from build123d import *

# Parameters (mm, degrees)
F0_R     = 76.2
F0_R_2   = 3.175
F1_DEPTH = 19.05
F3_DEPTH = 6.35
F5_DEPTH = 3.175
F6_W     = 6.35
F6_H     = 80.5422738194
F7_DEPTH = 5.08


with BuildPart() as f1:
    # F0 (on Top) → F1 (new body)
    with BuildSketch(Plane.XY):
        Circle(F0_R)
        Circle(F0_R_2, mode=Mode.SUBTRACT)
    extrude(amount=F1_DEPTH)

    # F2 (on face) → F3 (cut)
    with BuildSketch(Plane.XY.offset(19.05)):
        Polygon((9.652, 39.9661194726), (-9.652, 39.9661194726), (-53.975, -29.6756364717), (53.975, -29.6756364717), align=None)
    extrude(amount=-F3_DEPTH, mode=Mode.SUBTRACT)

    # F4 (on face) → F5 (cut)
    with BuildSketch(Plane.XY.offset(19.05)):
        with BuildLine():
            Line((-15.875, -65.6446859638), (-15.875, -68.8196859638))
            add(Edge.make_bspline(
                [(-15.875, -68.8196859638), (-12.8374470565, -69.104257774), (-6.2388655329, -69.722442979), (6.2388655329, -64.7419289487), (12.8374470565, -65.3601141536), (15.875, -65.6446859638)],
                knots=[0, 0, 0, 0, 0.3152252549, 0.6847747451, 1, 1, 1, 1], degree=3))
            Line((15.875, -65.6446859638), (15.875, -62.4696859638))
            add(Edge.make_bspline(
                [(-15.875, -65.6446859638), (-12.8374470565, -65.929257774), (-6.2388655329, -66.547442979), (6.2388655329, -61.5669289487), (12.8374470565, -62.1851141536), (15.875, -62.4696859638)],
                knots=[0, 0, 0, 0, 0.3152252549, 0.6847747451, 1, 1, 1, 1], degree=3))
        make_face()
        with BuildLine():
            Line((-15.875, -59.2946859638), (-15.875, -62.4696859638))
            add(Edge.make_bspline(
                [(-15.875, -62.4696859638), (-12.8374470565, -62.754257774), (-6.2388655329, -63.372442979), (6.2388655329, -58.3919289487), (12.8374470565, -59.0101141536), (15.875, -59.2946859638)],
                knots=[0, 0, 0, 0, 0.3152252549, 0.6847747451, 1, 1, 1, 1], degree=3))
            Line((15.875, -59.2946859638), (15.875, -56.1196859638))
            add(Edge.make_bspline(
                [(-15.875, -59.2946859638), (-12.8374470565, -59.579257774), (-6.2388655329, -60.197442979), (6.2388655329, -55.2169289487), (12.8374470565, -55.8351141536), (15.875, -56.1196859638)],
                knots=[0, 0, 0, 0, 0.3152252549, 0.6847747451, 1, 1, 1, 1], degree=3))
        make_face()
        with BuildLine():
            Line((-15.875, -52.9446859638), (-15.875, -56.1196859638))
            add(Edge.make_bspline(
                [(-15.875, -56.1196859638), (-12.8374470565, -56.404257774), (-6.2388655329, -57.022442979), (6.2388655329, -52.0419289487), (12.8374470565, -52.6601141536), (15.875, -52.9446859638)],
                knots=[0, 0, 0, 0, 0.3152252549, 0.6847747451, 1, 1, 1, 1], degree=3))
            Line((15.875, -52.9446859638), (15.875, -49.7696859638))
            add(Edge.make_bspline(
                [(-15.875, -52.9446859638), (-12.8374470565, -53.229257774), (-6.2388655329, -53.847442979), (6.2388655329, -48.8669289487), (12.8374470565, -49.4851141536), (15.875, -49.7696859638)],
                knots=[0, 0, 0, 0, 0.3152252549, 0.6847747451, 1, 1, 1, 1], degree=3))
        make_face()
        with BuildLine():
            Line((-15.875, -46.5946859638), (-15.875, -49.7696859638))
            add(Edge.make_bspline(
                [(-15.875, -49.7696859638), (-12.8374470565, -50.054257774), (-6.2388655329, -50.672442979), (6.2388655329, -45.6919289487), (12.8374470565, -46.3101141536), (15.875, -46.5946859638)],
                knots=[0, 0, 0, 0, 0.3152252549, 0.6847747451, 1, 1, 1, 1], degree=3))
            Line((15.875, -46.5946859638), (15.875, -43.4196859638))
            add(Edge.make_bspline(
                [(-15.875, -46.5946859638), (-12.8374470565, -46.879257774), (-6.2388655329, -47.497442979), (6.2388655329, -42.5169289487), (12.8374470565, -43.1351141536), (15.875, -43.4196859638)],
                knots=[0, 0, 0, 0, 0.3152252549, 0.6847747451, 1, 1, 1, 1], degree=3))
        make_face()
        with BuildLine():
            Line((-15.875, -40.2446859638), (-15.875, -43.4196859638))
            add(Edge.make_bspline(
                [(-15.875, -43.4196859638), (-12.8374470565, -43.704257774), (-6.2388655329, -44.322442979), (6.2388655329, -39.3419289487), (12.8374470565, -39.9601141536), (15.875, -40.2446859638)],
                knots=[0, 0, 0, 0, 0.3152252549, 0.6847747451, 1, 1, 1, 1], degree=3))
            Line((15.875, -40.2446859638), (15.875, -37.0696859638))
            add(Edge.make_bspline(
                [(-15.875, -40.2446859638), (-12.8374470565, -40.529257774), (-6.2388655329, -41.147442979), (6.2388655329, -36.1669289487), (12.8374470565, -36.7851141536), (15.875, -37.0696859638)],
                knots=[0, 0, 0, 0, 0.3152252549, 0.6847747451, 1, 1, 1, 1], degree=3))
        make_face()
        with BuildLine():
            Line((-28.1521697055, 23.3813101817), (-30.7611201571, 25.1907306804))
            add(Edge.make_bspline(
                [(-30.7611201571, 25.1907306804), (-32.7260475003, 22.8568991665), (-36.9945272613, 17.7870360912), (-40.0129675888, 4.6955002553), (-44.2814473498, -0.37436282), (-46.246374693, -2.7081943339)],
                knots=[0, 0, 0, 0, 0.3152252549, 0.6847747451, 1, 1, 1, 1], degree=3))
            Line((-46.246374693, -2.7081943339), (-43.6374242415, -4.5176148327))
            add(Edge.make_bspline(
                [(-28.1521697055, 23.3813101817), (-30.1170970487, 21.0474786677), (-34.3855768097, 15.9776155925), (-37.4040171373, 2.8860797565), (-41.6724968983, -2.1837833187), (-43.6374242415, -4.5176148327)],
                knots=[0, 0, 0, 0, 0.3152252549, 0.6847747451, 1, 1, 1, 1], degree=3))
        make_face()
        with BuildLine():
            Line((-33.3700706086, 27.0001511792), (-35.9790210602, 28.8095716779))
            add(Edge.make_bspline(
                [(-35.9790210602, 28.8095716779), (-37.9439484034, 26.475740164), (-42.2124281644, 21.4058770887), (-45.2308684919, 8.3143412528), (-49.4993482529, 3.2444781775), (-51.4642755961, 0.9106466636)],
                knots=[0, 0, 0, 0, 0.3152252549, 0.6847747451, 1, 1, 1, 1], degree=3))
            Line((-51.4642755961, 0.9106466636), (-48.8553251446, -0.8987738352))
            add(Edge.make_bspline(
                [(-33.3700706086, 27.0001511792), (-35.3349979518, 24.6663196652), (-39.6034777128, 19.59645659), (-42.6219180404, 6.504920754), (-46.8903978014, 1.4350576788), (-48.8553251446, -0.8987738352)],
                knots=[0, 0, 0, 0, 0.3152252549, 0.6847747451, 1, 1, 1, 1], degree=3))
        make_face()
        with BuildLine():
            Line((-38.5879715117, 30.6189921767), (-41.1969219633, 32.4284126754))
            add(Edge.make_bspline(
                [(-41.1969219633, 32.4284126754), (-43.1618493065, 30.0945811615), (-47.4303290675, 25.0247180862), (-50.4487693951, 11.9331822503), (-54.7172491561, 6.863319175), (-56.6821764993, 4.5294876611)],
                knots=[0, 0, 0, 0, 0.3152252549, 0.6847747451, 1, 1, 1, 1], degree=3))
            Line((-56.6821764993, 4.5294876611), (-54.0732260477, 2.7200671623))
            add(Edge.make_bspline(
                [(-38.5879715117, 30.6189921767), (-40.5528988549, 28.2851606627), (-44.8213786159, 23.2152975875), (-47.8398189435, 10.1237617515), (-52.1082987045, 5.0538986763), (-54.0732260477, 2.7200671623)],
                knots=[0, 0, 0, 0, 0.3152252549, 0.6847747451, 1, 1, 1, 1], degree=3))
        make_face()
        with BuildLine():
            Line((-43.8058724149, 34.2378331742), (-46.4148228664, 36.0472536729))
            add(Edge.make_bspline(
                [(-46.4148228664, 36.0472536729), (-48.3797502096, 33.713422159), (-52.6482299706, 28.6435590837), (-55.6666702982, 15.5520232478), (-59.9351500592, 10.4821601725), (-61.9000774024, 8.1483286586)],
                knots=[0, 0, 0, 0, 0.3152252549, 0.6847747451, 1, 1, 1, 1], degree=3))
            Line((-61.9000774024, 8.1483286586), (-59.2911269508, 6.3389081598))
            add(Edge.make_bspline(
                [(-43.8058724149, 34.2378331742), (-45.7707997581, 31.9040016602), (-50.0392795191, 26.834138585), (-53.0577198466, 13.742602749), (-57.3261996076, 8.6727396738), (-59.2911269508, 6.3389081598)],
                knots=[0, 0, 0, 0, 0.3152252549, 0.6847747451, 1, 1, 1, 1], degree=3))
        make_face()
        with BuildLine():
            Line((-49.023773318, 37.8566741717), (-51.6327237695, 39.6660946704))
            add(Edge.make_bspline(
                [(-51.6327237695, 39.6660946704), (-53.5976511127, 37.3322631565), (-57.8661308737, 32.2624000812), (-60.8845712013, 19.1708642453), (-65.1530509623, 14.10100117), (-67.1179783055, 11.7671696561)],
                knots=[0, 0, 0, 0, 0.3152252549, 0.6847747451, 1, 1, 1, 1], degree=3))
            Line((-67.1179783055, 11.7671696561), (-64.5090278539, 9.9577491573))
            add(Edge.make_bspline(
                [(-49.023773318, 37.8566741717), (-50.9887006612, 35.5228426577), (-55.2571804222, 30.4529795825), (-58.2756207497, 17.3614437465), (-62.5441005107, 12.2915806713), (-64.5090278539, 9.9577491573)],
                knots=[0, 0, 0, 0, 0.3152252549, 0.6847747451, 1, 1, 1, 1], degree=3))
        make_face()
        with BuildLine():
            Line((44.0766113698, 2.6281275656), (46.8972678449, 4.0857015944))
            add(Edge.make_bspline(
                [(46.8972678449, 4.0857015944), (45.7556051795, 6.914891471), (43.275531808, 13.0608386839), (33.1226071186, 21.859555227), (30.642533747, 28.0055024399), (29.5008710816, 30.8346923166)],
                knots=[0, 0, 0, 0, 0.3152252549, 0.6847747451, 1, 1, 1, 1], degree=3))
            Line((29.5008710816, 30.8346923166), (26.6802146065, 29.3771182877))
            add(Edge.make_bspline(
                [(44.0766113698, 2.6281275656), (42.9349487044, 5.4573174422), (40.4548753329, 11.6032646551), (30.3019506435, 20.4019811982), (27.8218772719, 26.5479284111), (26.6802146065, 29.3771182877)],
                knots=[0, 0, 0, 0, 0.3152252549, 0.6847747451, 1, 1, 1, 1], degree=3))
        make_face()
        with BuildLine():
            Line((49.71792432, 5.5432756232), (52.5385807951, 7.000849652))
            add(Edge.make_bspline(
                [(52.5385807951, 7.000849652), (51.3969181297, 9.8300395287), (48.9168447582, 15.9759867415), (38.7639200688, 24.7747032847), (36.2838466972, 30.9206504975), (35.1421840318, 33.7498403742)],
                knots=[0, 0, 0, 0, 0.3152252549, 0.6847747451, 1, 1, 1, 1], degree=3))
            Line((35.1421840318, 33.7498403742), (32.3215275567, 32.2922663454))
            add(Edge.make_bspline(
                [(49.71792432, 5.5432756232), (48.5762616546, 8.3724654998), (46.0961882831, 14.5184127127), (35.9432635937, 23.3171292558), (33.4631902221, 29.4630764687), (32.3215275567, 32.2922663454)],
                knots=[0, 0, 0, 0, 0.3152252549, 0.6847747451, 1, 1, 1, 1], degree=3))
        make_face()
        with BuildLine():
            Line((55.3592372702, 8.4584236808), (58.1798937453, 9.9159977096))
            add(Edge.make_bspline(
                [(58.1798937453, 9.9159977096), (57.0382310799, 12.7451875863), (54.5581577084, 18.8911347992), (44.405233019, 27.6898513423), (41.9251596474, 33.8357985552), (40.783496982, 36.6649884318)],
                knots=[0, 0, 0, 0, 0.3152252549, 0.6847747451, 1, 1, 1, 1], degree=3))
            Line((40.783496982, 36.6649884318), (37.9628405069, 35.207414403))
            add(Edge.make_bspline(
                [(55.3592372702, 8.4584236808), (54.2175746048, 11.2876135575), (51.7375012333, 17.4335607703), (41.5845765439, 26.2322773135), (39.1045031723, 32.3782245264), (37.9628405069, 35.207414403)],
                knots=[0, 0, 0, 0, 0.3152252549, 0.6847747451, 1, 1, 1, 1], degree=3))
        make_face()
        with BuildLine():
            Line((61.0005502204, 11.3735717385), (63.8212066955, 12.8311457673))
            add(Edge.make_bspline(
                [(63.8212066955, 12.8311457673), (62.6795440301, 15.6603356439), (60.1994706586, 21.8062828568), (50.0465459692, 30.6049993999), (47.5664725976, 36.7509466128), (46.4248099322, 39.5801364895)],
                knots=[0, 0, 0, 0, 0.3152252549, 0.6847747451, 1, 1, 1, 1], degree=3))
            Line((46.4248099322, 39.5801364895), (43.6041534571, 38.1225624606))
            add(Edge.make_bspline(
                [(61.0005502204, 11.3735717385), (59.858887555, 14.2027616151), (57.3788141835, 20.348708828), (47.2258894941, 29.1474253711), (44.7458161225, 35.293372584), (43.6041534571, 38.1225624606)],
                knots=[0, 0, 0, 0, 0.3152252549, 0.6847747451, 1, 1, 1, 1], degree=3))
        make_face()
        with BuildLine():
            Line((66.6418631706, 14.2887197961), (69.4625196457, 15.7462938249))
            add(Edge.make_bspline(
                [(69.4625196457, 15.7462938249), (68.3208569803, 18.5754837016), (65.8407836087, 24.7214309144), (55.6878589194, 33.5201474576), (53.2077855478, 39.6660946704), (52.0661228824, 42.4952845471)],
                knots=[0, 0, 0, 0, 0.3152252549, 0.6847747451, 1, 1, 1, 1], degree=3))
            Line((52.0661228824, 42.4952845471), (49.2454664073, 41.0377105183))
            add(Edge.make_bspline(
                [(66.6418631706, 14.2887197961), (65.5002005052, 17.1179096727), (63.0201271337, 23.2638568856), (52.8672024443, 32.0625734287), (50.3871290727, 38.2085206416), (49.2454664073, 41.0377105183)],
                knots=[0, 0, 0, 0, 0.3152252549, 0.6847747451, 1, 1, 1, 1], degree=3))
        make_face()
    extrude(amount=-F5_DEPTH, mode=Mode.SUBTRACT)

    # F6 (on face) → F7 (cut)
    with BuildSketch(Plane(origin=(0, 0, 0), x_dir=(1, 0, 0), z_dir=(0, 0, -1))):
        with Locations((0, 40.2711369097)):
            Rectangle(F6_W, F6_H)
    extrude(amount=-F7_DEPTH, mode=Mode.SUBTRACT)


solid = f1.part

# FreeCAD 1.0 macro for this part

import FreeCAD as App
import Part
import Sketcher

V = App.Vector
Q = App.Units.Quantity


def add_polygon(sketch, points):
    """Adds a closed chain of lines whose ends are joined by coincident constraints."""
    first, n = sketch.GeometryCount, len(points)
    for a, b in zip(points, points[1:] + points[:1]):
        sketch.addGeometry(Part.LineSegment(App.Vector(*a, 0), App.Vector(*b, 0)), False)
    for i in range(n):
        sketch.addConstraint(Sketcher.Constraint("Coincident", first + i, 2, first + (i + 1) % n, 1))

doc = App.newDocument("Part")
params = doc.addObject("Spreadsheet::Sheet", "Params")
for row, (alias, value) in enumerate([
    ("sketch1_diameter", "6 in"),
    ("sketch1_diameter2", "0.25 in"),
    ("pad1_length", "0.75 in"),
    ("sketch2_width", "0.76 in"),
    ("sketch2_width2", "4.25 in"),
    ("sketch2_length", "3.25 in"),
    ("pocket1_length", "0.25 in"),
    ("pocket2_length", "0.125 in"),
    ("sketch4_width", "0.25 in"),
    ("pocket3_length", "0.2 in"),
], start=1):
    params.set(f"A{row}", alias)
    params.set(f"B{row}", "=" + value)
    params.setAlias(f"B{row}", alias)

body = doc.addObject("PartDesign::Body", "Body")

# Sketch on XY plane
sketch1 = body.newObject("Sketcher::SketchObject", "Sketch")
sketch1.AttachmentSupport = (doc.getObject("XY_Plane"), [""])
sketch1.MapMode = "FlatFace"
sketch1.addGeometry([
    Part.Circle(V(0, 0, 0), V(0, 0, 1), 76.2),
    Part.Circle(V(0, 0, 0), V(0, 0, 1), 3.2),
], False)
sketch1.addConstraint([
    Sketcher.Constraint("Coincident", 0, 3, -1, 1),
    Sketcher.Constraint("Coincident", 1, 3, -1, 1),
    Sketcher.Constraint("Diameter", 0, Q("6 in")),
    Sketcher.Constraint("Diameter", 1, Q("0.25 in")),
])
sketch1.setExpression("Constraints[2]", "Params.sketch1_diameter")
sketch1.setExpression("Constraints[3]", "Params.sketch1_diameter2")
pad1 = body.newObject("PartDesign::Pad", "Pad")
pad1.Profile = sketch1
pad1.setExpression("Length", "Params.pad1_length")

# Sketch on XY plane
sketch2 = body.newObject("Sketcher::SketchObject", "Sketch001")
sketch2.AttachmentSupport = (doc.getObject("XY_Plane"), [""])
sketch2.MapMode = "FlatFace"
sketch2.AttachmentOffset = App.Placement(V(0, 0, 0.75 * 25.4), App.Rotation())
add_polygon(sketch2, [(10, 40), (-10, 40), (-54, -30), (54, -30)])  # lines 0-3
sketch2.addConstraint([
    Sketcher.Constraint("Horizontal", 0),
    Sketcher.Constraint("Horizontal", 2),
    Sketcher.Constraint("Equal", 1, 3),
    Sketcher.Constraint("DistanceX", 0, 2, 0, 1, Q("0.76 in")),
    Sketcher.Constraint("DistanceX", 2, 1, 2, 2, Q("4.25 in")),
    Sketcher.Constraint("Distance", 1, Q("3.25 in")),
    Sketcher.Constraint("DistanceX", 0, 2, -1, 1, Q("0.38 in")),
    Sketcher.Constraint("DistanceY", -1, 1, 0, 2, 39.966119),
])
sketch2.setExpression("Constraints[7]", "Params.sketch2_width")
sketch2.setExpression("Constraints[8]", "Params.sketch2_width2")
sketch2.setExpression("Constraints[9]", "Params.sketch2_length")
pocket1 = body.newObject("PartDesign::Pocket", "Pocket")
pocket1.Profile = sketch2
pocket1.setExpression("Length", "Params.pocket1_length")

# Sketch on XY plane
sketch3 = body.newObject("Sketcher::SketchObject", "Sketch002")
sketch3.AttachmentSupport = (doc.getObject("XY_Plane"), [""])
sketch3.MapMode = "FlatFace"
sketch3.AttachmentOffset = App.Placement(V(0, 0, 0.75 * 25.4), App.Rotation())
sketch3.addGeometry([
    Part.LineSegment(V(-15.875, -65.644686, 0), V(-15.875, -68.819686, 0)),  # 0
    Part.BSplineCurve([V(-15.875, -68.819686, 0), V(-12.837447, -69.104258, 0), V(-6.238866, -69.722443, 0), V(6.238866, -64.741929, 0), V(12.837447, -65.360114, 0), V(15.875, -65.644686, 0)], [4, 1, 1, 4], [0, 0.315225255, 0.684774745, 1], False, 3, [1, 1, 1, 1, 1, 1], False),  # 1
    Part.LineSegment(V(15.875, -65.644686, 0), V(15.875, -62.469686, 0)),  # 2
    Part.BSplineCurve([V(-15.875, -65.644686, 0), V(-12.837447, -65.929258, 0), V(-6.238866, -66.547443, 0), V(6.238866, -61.566929, 0), V(12.837447, -62.185114, 0), V(15.875, -62.469686, 0)], [4, 1, 1, 4], [0, 0.315225255, 0.684774745, 1], False, 3, [1, 1, 1, 1, 1, 1], False),  # 3
    Part.LineSegment(V(-15.875, -59.294686, 0), V(-15.875, -62.469686, 0)),  # 4
    Part.BSplineCurve([V(-15.875, -62.469686, 0), V(-12.837447, -62.754258, 0), V(-6.238866, -63.372443, 0), V(6.238866, -58.391929, 0), V(12.837447, -59.010114, 0), V(15.875, -59.294686, 0)], [4, 1, 1, 4], [0, 0.315225255, 0.684774745, 1], False, 3, [1, 1, 1, 1, 1, 1], False),  # 5
    Part.LineSegment(V(15.875, -59.294686, 0), V(15.875, -56.119686, 0)),  # 6
    Part.BSplineCurve([V(-15.875, -59.294686, 0), V(-12.837447, -59.579258, 0), V(-6.238866, -60.197443, 0), V(6.238866, -55.216929, 0), V(12.837447, -55.835114, 0), V(15.875, -56.119686, 0)], [4, 1, 1, 4], [0, 0.315225255, 0.684774745, 1], False, 3, [1, 1, 1, 1, 1, 1], False),  # 7
    Part.LineSegment(V(-15.875, -52.944686, 0), V(-15.875, -56.119686, 0)),  # 8
    Part.BSplineCurve([V(-15.875, -56.119686, 0), V(-12.837447, -56.404258, 0), V(-6.238866, -57.022443, 0), V(6.238866, -52.041929, 0), V(12.837447, -52.660114, 0), V(15.875, -52.944686, 0)], [4, 1, 1, 4], [0, 0.315225255, 0.684774745, 1], False, 3, [1, 1, 1, 1, 1, 1], False),  # 9
    Part.LineSegment(V(15.875, -52.944686, 0), V(15.875, -49.769686, 0)),  # 10
    Part.BSplineCurve([V(-15.875, -52.944686, 0), V(-12.837447, -53.229258, 0), V(-6.238866, -53.847443, 0), V(6.238866, -48.866929, 0), V(12.837447, -49.485114, 0), V(15.875, -49.769686, 0)], [4, 1, 1, 4], [0, 0.315225255, 0.684774745, 1], False, 3, [1, 1, 1, 1, 1, 1], False),  # 11
    Part.LineSegment(V(-15.875, -46.594686, 0), V(-15.875, -49.769686, 0)),  # 12
    Part.BSplineCurve([V(-15.875, -49.769686, 0), V(-12.837447, -50.054258, 0), V(-6.238866, -50.672443, 0), V(6.238866, -45.691929, 0), V(12.837447, -46.310114, 0), V(15.875, -46.594686, 0)], [4, 1, 1, 4], [0, 0.315225255, 0.684774745, 1], False, 3, [1, 1, 1, 1, 1, 1], False),  # 13
    Part.LineSegment(V(15.875, -46.594686, 0), V(15.875, -43.419686, 0)),  # 14
    Part.BSplineCurve([V(-15.875, -46.594686, 0), V(-12.837447, -46.879258, 0), V(-6.238866, -47.497443, 0), V(6.238866, -42.516929, 0), V(12.837447, -43.135114, 0), V(15.875, -43.419686, 0)], [4, 1, 1, 4], [0, 0.315225255, 0.684774745, 1], False, 3, [1, 1, 1, 1, 1, 1], False),  # 15
    Part.LineSegment(V(-15.875, -40.244686, 0), V(-15.875, -43.419686, 0)),  # 16
    Part.BSplineCurve([V(-15.875, -43.419686, 0), V(-12.837447, -43.704258, 0), V(-6.238866, -44.322443, 0), V(6.238866, -39.341929, 0), V(12.837447, -39.960114, 0), V(15.875, -40.244686, 0)], [4, 1, 1, 4], [0, 0.315225255, 0.684774745, 1], False, 3, [1, 1, 1, 1, 1, 1], False),  # 17
    Part.LineSegment(V(15.875, -40.244686, 0), V(15.875, -37.069686, 0)),  # 18
    Part.BSplineCurve([V(-15.875, -40.244686, 0), V(-12.837447, -40.529258, 0), V(-6.238866, -41.147443, 0), V(6.238866, -36.166929, 0), V(12.837447, -36.785114, 0), V(15.875, -37.069686, 0)], [4, 1, 1, 4], [0, 0.315225255, 0.684774745, 1], False, 3, [1, 1, 1, 1, 1, 1], False),  # 19
    Part.LineSegment(V(-28.15217, 23.38131, 0), V(-30.76112, 25.190731, 0)),  # 20
    Part.BSplineCurve([V(-30.76112, 25.190731, 0), V(-32.726047, 22.856899, 0), V(-36.994527, 17.787036, 0), V(-40.012968, 4.6955, 0), V(-44.281447, -0.374363, 0), V(-46.246375, -2.708194, 0)], [4, 1, 1, 4], [0, 0.315225255, 0.684774745, 1], False, 3, [1, 1, 1, 1, 1, 1], False),  # 21
    Part.LineSegment(V(-46.246375, -2.708194, 0), V(-43.637424, -4.517615, 0)),  # 22
    Part.BSplineCurve([V(-28.15217, 23.38131, 0), V(-30.117097, 21.047479, 0), V(-34.385577, 15.977616, 0), V(-37.404017, 2.88608, 0), V(-41.672497, -2.183783, 0), V(-43.637424, -4.517615, 0)], [4, 1, 1, 4], [0, 0.315225255, 0.684774745, 1], False, 3, [1, 1, 1, 1, 1, 1], False),  # 23
    Part.LineSegment(V(-33.370071, 27.000151, 0), V(-35.979021, 28.809572, 0)),  # 24
    Part.BSplineCurve([V(-35.979021, 28.809572, 0), V(-37.943948, 26.47574, 0), V(-42.212428, 21.405877, 0), V(-45.230868, 8.314341, 0), V(-49.499348, 3.244478, 0), V(-51.464276, 0.910647, 0)], [4, 1, 1, 4], [0, 0.315225255, 0.684774745, 1], False, 3, [1, 1, 1, 1, 1, 1], False),  # 25
    Part.LineSegment(V(-51.464276, 0.910647, 0), V(-48.855325, -0.898774, 0)),  # 26
    Part.BSplineCurve([V(-33.370071, 27.000151, 0), V(-35.334998, 24.66632, 0), V(-39.603478, 19.596457, 0), V(-42.621918, 6.504921, 0), V(-46.890398, 1.435058, 0), V(-48.855325, -0.898774, 0)], [4, 1, 1, 4], [0, 0.315225255, 0.684774745, 1], False, 3, [1, 1, 1, 1, 1, 1], False),  # 27
    Part.LineSegment(V(-38.587972, 30.618992, 0), V(-41.196922, 32.428413, 0)),  # 28
    Part.BSplineCurve([V(-41.196922, 32.428413, 0), V(-43.161849, 30.094581, 0), V(-47.430329, 25.024718, 0), V(-50.448769, 11.933182, 0), V(-54.717249, 6.863319, 0), V(-56.682176, 4.529488, 0)], [4, 1, 1, 4], [0, 0.315225255, 0.684774745, 1], False, 3, [1, 1, 1, 1, 1, 1], False),  # 29
    Part.LineSegment(V(-56.682176, 4.529488, 0), V(-54.073226, 2.720067, 0)),  # 30
    Part.BSplineCurve([V(-38.587972, 30.618992, 0), V(-40.552899, 28.285161, 0), V(-44.821379, 23.215298, 0), V(-47.839819, 10.123762, 0), V(-52.108299, 5.053899, 0), V(-54.073226, 2.720067, 0)], [4, 1, 1, 4], [0, 0.315225255, 0.684774745, 1], False, 3, [1, 1, 1, 1, 1, 1], False),  # 31
    Part.LineSegment(V(-43.805872, 34.237833, 0), V(-46.414823, 36.047254, 0)),  # 32
    Part.BSplineCurve([V(-46.414823, 36.047254, 0), V(-48.37975, 33.713422, 0), V(-52.64823, 28.643559, 0), V(-55.66667, 15.552023, 0), V(-59.93515, 10.48216, 0), V(-61.900077, 8.148329, 0)], [4, 1, 1, 4], [0, 0.315225255, 0.684774745, 1], False, 3, [1, 1, 1, 1, 1, 1], False),  # 33
    Part.LineSegment(V(-61.900077, 8.148329, 0), V(-59.291127, 6.338908, 0)),  # 34
    Part.BSplineCurve([V(-43.805872, 34.237833, 0), V(-45.7708, 31.904002, 0), V(-50.03928, 26.834139, 0), V(-53.05772, 13.742603, 0), V(-57.3262, 8.67274, 0), V(-59.291127, 6.338908, 0)], [4, 1, 1, 4], [0, 0.315225255, 0.684774745, 1], False, 3, [1, 1, 1, 1, 1, 1], False),  # 35
    Part.LineSegment(V(-49.023773, 37.856674, 0), V(-51.632724, 39.666095, 0)),  # 36
    Part.BSplineCurve([V(-51.632724, 39.666095, 0), V(-53.597651, 37.332263, 0), V(-57.866131, 32.2624, 0), V(-60.884571, 19.170864, 0), V(-65.153051, 14.101001, 0), V(-67.117978, 11.76717, 0)], [4, 1, 1, 4], [0, 0.315225255, 0.684774745, 1], False, 3, [1, 1, 1, 1, 1, 1], False),  # 37
    Part.LineSegment(V(-67.117978, 11.76717, 0), V(-64.509028, 9.957749, 0)),  # 38
    Part.BSplineCurve([V(-49.023773, 37.856674, 0), V(-50.988701, 35.522843, 0), V(-55.25718, 30.45298, 0), V(-58.275621, 17.361444, 0), V(-62.544101, 12.291581, 0), V(-64.509028, 9.957749, 0)], [4, 1, 1, 4], [0, 0.315225255, 0.684774745, 1], False, 3, [1, 1, 1, 1, 1, 1], False),  # 39
    Part.LineSegment(V(44.076611, 2.628128, 0), V(46.897268, 4.085702, 0)),  # 40
    Part.BSplineCurve([V(46.897268, 4.085702, 0), V(45.755605, 6.914891, 0), V(43.275532, 13.060839, 0), V(33.122607, 21.859555, 0), V(30.642534, 28.005502, 0), V(29.500871, 30.834692, 0)], [4, 1, 1, 4], [0, 0.315225255, 0.684774745, 1], False, 3, [1, 1, 1, 1, 1, 1], False),  # 41
    Part.LineSegment(V(29.500871, 30.834692, 0), V(26.680215, 29.377118, 0)),  # 42
    Part.BSplineCurve([V(44.076611, 2.628128, 0), V(42.934949, 5.457317, 0), V(40.454875, 11.603265, 0), V(30.301951, 20.401981, 0), V(27.821877, 26.547928, 0), V(26.680215, 29.377118, 0)], [4, 1, 1, 4], [0, 0.315225255, 0.684774745, 1], False, 3, [1, 1, 1, 1, 1, 1], False),  # 43
    Part.LineSegment(V(49.717924, 5.543276, 0), V(52.538581, 7.00085, 0)),  # 44
    Part.BSplineCurve([V(52.538581, 7.00085, 0), V(51.396918, 9.83004, 0), V(48.916845, 15.975987, 0), V(38.76392, 24.774703, 0), V(36.283847, 30.92065, 0), V(35.142184, 33.74984, 0)], [4, 1, 1, 4], [0, 0.315225255, 0.684774745, 1], False, 3, [1, 1, 1, 1, 1, 1], False),  # 45
    Part.LineSegment(V(35.142184, 33.74984, 0), V(32.321528, 32.292266, 0)),  # 46
    Part.BSplineCurve([V(49.717924, 5.543276, 0), V(48.576262, 8.372466, 0), V(46.096188, 14.518413, 0), V(35.943264, 23.317129, 0), V(33.46319, 29.463076, 0), V(32.321528, 32.292266, 0)], [4, 1, 1, 4], [0, 0.315225255, 0.684774745, 1], False, 3, [1, 1, 1, 1, 1, 1], False),  # 47
    Part.LineSegment(V(55.359237, 8.458424, 0), V(58.179894, 9.915998, 0)),  # 48
    Part.BSplineCurve([V(58.179894, 9.915998, 0), V(57.038231, 12.745188, 0), V(54.558158, 18.891135, 0), V(44.405233, 27.689851, 0), V(41.92516, 33.835799, 0), V(40.783497, 36.664988, 0)], [4, 1, 1, 4], [0, 0.315225255, 0.684774745, 1], False, 3, [1, 1, 1, 1, 1, 1], False),  # 49
    Part.LineSegment(V(40.783497, 36.664988, 0), V(37.962841, 35.207414, 0)),  # 50
    Part.BSplineCurve([V(55.359237, 8.458424, 0), V(54.217575, 11.287614, 0), V(51.737501, 17.433561, 0), V(41.584577, 26.232277, 0), V(39.104503, 32.378225, 0), V(37.962841, 35.207414, 0)], [4, 1, 1, 4], [0, 0.315225255, 0.684774745, 1], False, 3, [1, 1, 1, 1, 1, 1], False),  # 51
    Part.LineSegment(V(61.00055, 11.373572, 0), V(63.821207, 12.831146, 0)),  # 52
    Part.BSplineCurve([V(63.821207, 12.831146, 0), V(62.679544, 15.660336, 0), V(60.199471, 21.806283, 0), V(50.046546, 30.604999, 0), V(47.566473, 36.750947, 0), V(46.42481, 39.580136, 0)], [4, 1, 1, 4], [0, 0.315225255, 0.684774745, 1], False, 3, [1, 1, 1, 1, 1, 1], False),  # 53
    Part.LineSegment(V(46.42481, 39.580136, 0), V(43.604153, 38.122562, 0)),  # 54
    Part.BSplineCurve([V(61.00055, 11.373572, 0), V(59.858888, 14.202762, 0), V(57.378814, 20.348709, 0), V(47.225889, 29.147425, 0), V(44.745816, 35.293373, 0), V(43.604153, 38.122562, 0)], [4, 1, 1, 4], [0, 0.315225255, 0.684774745, 1], False, 3, [1, 1, 1, 1, 1, 1], False),  # 55
    Part.LineSegment(V(66.641863, 14.28872, 0), V(69.46252, 15.746294, 0)),  # 56
    Part.BSplineCurve([V(69.46252, 15.746294, 0), V(68.320857, 18.575484, 0), V(65.840784, 24.721431, 0), V(55.687859, 33.520147, 0), V(53.207786, 39.666095, 0), V(52.066123, 42.495285, 0)], [4, 1, 1, 4], [0, 0.315225255, 0.684774745, 1], False, 3, [1, 1, 1, 1, 1, 1], False),  # 57
    Part.LineSegment(V(52.066123, 42.495285, 0), V(49.245466, 41.037711, 0)),  # 58
    Part.BSplineCurve([V(66.641863, 14.28872, 0), V(65.500201, 17.11791, 0), V(63.020127, 23.263857, 0), V(52.867202, 32.062573, 0), V(50.387129, 38.208521, 0), V(49.245466, 41.037711, 0)], [4, 1, 1, 4], [0, 0.315225255, 0.684774745, 1], False, 3, [1, 1, 1, 1, 1, 1], False),  # 59
], False)
sketch3.addConstraint([
    Sketcher.Constraint("Block", 1),
    Sketcher.Constraint("Block", 3),
    Sketcher.Constraint("Block", 5),
    Sketcher.Constraint("Block", 7),
    Sketcher.Constraint("Block", 9),
    Sketcher.Constraint("Block", 11),
    Sketcher.Constraint("Block", 13),
    Sketcher.Constraint("Block", 15),
    Sketcher.Constraint("Block", 17),
    Sketcher.Constraint("Block", 19),
    Sketcher.Constraint("Block", 21),
    Sketcher.Constraint("Block", 23),
    Sketcher.Constraint("Block", 25),
    Sketcher.Constraint("Block", 27),
    Sketcher.Constraint("Block", 29),
    Sketcher.Constraint("Block", 31),
    Sketcher.Constraint("Block", 33),
    Sketcher.Constraint("Block", 35),
    Sketcher.Constraint("Block", 37),
    Sketcher.Constraint("Block", 39),
    Sketcher.Constraint("Block", 41),
    Sketcher.Constraint("Block", 43),
    Sketcher.Constraint("Block", 45),
    Sketcher.Constraint("Block", 47),
    Sketcher.Constraint("Block", 49),
    Sketcher.Constraint("Block", 51),
    Sketcher.Constraint("Block", 53),
    Sketcher.Constraint("Block", 55),
    Sketcher.Constraint("Block", 57),
    Sketcher.Constraint("Block", 59),
    Sketcher.Constraint("Coincident", 0, 2, 1, 1),
    Sketcher.Constraint("Coincident", 1, 2, 2, 1),
    Sketcher.Constraint("Coincident", 2, 2, 3, 2),
    Sketcher.Constraint("Coincident", 3, 1, 0, 1),
    Sketcher.Constraint("Coincident", 4, 2, 5, 1),
    Sketcher.Constraint("Coincident", 5, 2, 6, 1),
    Sketcher.Constraint("Coincident", 6, 2, 7, 2),
    Sketcher.Constraint("Coincident", 7, 1, 4, 1),
    Sketcher.Constraint("Coincident", 8, 2, 9, 1),
    Sketcher.Constraint("Coincident", 9, 2, 10, 1),
    Sketcher.Constraint("Coincident", 10, 2, 11, 2),
    Sketcher.Constraint("Coincident", 11, 1, 8, 1),
    Sketcher.Constraint("Coincident", 12, 2, 13, 1),
    Sketcher.Constraint("Coincident", 13, 2, 14, 1),
    Sketcher.Constraint("Coincident", 14, 2, 15, 2),
    Sketcher.Constraint("Coincident", 15, 1, 12, 1),
    Sketcher.Constraint("Coincident", 16, 2, 17, 1),
    Sketcher.Constraint("Coincident", 17, 2, 18, 1),
    Sketcher.Constraint("Coincident", 18, 2, 19, 2),
    Sketcher.Constraint("Coincident", 19, 1, 16, 1),
    Sketcher.Constraint("Coincident", 20, 2, 21, 1),
    Sketcher.Constraint("Coincident", 21, 2, 22, 1),
    Sketcher.Constraint("Coincident", 22, 2, 23, 2),
    Sketcher.Constraint("Coincident", 23, 1, 20, 1),
    Sketcher.Constraint("Coincident", 24, 2, 25, 1),
    Sketcher.Constraint("Coincident", 25, 2, 26, 1),
    Sketcher.Constraint("Coincident", 26, 2, 27, 2),
    Sketcher.Constraint("Coincident", 27, 1, 24, 1),
    Sketcher.Constraint("Coincident", 28, 2, 29, 1),
    Sketcher.Constraint("Coincident", 29, 2, 30, 1),
    Sketcher.Constraint("Coincident", 30, 2, 31, 2),
    Sketcher.Constraint("Coincident", 31, 1, 28, 1),
    Sketcher.Constraint("Coincident", 32, 2, 33, 1),
    Sketcher.Constraint("Coincident", 33, 2, 34, 1),
    Sketcher.Constraint("Coincident", 34, 2, 35, 2),
    Sketcher.Constraint("Coincident", 35, 1, 32, 1),
    Sketcher.Constraint("Coincident", 36, 2, 37, 1),
    Sketcher.Constraint("Coincident", 37, 2, 38, 1),
    Sketcher.Constraint("Coincident", 38, 2, 39, 2),
    Sketcher.Constraint("Coincident", 39, 1, 36, 1),
    Sketcher.Constraint("Coincident", 40, 2, 41, 1),
    Sketcher.Constraint("Coincident", 41, 2, 42, 1),
    Sketcher.Constraint("Coincident", 42, 2, 43, 2),
    Sketcher.Constraint("Coincident", 43, 1, 40, 1),
    Sketcher.Constraint("Coincident", 44, 2, 45, 1),
    Sketcher.Constraint("Coincident", 45, 2, 46, 1),
    Sketcher.Constraint("Coincident", 46, 2, 47, 2),
    Sketcher.Constraint("Coincident", 47, 1, 44, 1),
    Sketcher.Constraint("Coincident", 48, 2, 49, 1),
    Sketcher.Constraint("Coincident", 49, 2, 50, 1),
    Sketcher.Constraint("Coincident", 50, 2, 51, 2),
    Sketcher.Constraint("Coincident", 51, 1, 48, 1),
    Sketcher.Constraint("Coincident", 52, 2, 53, 1),
    Sketcher.Constraint("Coincident", 53, 2, 54, 1),
    Sketcher.Constraint("Coincident", 54, 2, 55, 2),
    Sketcher.Constraint("Coincident", 55, 1, 52, 1),
    Sketcher.Constraint("Coincident", 56, 2, 57, 1),
    Sketcher.Constraint("Coincident", 57, 2, 58, 1),
    Sketcher.Constraint("Coincident", 58, 2, 59, 2),
    Sketcher.Constraint("Coincident", 59, 1, 56, 1),
])
pocket2 = body.newObject("PartDesign::Pocket", "Pocket001")
pocket2.Profile = sketch3
pocket2.setExpression("Length", "Params.pocket2_length")

# Sketch on XY plane
sketch4 = body.newObject("Sketcher::SketchObject", "Sketch003")
sketch4.AttachmentSupport = (doc.getObject("XY_Plane"), [""])
sketch4.MapMode = "FlatFace"
add_polygon(sketch4, [(-3, -81), (-3, 0), (3, 0), (3, -81)])  # lines 0-3
sketch4.addConstraint([
    Sketcher.Constraint("Vertical", 0),
    Sketcher.Constraint("Horizontal", 1),
    Sketcher.Constraint("Vertical", 2),
    Sketcher.Constraint("Horizontal", 3),
    Sketcher.Constraint("Symmetric", 0, 2, 1, 2, -1, 1),
    Sketcher.Constraint("DistanceX", 1, 1, 1, 2, Q("0.25 in")),
    Sketcher.Constraint("DistanceY", 0, 1, 0, 2, 80.542274),
])
sketch4.setExpression("Constraints[9]", "Params.sketch4_width")
pocket3 = body.newObject("PartDesign::Pocket", "Pocket002")
pocket3.Profile = sketch4
pocket3.setExpression("Length", "Params.pocket3_length")
pocket3.Reversed = True

doc.recompute()
